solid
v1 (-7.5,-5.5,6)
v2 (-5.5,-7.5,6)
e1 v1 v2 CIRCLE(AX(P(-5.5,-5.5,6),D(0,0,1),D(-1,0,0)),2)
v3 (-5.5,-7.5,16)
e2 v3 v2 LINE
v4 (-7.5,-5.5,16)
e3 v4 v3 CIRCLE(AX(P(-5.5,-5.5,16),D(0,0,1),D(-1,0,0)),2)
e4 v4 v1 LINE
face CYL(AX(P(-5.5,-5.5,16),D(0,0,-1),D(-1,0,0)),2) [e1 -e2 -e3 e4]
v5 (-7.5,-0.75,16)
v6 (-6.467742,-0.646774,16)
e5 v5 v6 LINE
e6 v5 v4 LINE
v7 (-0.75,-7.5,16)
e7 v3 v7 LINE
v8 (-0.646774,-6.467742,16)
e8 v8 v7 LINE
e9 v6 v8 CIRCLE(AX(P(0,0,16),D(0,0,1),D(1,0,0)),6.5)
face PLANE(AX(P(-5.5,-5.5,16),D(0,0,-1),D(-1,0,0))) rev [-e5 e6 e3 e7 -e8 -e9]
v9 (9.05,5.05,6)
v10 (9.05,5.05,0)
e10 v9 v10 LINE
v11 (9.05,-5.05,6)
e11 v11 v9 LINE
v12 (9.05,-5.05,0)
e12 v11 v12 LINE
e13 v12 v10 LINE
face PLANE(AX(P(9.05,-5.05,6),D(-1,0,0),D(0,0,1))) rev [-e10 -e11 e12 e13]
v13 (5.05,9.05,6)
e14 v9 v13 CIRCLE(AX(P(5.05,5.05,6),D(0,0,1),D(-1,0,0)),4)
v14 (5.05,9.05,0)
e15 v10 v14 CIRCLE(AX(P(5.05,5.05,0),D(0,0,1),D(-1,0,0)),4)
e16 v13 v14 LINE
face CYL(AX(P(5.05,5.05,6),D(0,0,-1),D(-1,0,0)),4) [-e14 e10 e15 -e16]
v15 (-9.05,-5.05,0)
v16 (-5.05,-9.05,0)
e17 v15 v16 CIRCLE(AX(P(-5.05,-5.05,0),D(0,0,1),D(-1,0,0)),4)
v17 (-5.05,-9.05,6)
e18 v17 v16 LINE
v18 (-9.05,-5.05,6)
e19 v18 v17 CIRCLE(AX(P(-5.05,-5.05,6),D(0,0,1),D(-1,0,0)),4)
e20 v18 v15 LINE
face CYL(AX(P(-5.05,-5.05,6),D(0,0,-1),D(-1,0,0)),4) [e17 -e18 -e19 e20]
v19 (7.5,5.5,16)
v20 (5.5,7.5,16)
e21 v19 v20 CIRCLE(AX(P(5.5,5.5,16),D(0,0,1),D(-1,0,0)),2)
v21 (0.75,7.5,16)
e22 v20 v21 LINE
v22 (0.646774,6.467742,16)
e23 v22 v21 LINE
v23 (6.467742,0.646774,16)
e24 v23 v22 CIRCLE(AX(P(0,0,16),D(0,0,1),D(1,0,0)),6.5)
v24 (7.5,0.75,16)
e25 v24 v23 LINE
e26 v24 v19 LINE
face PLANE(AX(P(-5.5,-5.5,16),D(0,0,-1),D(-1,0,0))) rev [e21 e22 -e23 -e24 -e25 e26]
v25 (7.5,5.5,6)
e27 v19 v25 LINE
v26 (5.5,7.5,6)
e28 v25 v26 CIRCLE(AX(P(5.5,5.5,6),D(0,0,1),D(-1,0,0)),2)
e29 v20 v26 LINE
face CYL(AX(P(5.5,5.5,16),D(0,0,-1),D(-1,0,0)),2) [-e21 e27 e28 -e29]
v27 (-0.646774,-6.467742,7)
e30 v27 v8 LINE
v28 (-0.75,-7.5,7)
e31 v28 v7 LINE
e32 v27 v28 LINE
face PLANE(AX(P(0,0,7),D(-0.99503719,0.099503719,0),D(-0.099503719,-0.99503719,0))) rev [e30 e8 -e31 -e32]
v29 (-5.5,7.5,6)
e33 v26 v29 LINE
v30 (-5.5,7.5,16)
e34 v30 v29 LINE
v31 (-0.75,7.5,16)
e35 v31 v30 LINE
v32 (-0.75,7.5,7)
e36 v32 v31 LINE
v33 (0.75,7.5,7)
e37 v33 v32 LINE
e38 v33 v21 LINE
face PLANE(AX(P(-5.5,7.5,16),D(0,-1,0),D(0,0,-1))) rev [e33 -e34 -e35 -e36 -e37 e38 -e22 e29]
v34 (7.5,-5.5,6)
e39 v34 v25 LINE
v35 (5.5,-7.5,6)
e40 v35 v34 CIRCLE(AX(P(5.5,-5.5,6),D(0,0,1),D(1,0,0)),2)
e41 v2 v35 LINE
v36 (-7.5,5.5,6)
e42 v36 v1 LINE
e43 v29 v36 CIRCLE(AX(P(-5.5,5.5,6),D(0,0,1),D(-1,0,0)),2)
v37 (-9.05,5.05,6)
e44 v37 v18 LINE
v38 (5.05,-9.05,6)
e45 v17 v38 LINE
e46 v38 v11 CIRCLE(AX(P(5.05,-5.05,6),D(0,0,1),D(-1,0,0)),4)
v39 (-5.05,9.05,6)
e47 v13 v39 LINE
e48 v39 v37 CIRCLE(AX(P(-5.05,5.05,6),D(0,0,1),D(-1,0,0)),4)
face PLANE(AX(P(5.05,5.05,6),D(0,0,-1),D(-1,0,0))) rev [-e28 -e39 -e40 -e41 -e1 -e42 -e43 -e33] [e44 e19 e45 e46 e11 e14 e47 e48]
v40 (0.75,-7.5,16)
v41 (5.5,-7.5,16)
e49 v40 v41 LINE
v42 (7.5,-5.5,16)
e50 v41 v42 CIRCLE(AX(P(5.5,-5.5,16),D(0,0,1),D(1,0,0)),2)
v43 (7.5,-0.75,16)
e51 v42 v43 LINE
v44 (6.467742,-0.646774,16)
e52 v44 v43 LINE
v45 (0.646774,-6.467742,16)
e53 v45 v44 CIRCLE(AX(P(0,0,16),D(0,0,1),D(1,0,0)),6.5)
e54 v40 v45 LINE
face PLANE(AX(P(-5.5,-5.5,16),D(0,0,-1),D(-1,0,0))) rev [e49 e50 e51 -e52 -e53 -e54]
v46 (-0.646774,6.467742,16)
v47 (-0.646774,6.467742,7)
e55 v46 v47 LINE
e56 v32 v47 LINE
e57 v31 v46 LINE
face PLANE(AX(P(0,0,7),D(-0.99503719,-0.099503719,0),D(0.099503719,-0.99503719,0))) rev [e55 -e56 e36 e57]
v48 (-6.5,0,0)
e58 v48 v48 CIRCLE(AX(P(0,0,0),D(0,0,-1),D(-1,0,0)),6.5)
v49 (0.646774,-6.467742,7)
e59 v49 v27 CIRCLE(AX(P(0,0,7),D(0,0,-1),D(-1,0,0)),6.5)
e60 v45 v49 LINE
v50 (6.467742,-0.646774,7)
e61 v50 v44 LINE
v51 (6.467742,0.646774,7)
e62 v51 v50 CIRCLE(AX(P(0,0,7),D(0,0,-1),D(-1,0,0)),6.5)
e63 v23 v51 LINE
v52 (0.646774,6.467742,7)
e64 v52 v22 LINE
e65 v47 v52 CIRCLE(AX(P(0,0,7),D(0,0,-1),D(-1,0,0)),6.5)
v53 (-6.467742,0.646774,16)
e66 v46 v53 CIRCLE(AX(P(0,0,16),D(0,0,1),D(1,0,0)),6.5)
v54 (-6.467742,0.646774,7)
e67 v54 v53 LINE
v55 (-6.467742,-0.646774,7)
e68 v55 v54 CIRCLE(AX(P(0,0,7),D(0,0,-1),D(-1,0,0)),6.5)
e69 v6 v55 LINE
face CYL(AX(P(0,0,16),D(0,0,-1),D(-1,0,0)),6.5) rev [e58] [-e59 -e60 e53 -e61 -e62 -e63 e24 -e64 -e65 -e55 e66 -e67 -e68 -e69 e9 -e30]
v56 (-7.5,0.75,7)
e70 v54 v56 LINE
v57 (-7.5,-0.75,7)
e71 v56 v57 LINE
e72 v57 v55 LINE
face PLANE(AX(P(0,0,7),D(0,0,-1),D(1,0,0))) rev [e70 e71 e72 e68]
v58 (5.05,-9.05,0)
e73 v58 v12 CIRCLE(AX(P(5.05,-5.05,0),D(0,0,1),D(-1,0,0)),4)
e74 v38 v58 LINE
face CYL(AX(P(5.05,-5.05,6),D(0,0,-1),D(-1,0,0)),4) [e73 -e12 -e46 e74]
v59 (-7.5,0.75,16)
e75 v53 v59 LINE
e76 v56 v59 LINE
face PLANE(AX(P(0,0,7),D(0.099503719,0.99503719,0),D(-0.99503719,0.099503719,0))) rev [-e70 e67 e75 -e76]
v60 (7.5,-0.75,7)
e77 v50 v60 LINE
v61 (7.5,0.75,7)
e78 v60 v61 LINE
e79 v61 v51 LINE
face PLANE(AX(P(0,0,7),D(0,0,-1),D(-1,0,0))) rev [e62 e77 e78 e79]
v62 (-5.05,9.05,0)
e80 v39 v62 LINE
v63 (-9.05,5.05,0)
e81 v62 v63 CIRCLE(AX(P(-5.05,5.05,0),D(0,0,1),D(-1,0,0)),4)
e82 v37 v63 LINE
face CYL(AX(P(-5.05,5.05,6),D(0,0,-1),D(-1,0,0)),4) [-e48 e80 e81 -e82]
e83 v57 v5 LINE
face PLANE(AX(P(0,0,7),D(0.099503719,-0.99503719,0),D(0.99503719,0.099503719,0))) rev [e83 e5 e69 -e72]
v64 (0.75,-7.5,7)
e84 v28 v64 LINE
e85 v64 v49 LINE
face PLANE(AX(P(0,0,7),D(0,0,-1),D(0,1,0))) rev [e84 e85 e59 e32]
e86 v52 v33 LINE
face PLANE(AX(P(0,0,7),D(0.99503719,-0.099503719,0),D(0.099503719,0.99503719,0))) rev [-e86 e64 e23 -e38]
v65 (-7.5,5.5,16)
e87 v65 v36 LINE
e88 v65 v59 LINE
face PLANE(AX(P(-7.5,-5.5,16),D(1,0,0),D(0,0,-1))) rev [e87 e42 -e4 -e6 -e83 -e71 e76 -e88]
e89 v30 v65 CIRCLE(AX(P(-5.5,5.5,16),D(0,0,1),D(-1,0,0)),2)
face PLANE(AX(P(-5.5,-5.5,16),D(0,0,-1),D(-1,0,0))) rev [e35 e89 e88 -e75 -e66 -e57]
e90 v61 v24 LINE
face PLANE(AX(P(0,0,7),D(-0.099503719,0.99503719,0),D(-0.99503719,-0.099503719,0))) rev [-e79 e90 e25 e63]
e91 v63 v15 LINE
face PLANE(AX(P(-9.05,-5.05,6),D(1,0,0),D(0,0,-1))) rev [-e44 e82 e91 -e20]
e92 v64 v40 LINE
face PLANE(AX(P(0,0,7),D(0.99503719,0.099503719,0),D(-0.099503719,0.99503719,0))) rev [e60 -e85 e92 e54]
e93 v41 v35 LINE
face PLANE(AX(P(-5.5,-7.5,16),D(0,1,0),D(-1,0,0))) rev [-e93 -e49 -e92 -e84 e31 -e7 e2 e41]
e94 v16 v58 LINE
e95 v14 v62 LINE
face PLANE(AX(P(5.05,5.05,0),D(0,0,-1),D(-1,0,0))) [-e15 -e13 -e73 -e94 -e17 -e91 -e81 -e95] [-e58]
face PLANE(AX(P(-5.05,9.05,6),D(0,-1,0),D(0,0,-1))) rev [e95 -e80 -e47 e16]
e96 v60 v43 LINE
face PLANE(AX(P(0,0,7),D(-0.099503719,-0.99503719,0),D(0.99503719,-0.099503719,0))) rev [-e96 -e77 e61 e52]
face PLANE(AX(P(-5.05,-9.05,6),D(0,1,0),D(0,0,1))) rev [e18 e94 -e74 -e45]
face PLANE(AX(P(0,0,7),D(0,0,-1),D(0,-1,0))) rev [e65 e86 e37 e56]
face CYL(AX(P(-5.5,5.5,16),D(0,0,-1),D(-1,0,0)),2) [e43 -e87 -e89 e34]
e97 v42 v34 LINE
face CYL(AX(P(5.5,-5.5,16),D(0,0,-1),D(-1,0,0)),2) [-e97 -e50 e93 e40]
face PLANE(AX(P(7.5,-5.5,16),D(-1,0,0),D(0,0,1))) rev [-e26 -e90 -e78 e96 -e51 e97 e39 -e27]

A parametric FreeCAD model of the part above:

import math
import FreeCAD as App
import Part
import Sketcher

doc = App.newDocument("Part")
body = doc.addObject("PartDesign::Body", "Body")

sketch1 = body.newObject("Sketcher::SketchObject", "Sketch")
sketch1.AttachmentSupport = (doc.getObject("XY_Plane"), [""])
sketch1.MapMode = "FlatFace"
sketch1.addGeometry(Part.LineSegment(App.Vector(5.05, 9.05, 0), App.Vector(-5.05, 9.05, 0)), False)
sketch1.addGeometry(Part.ArcOfCircle(Part.Circle(App.Vector(-5.05, 5.05, 0), App.Vector(0, 0, 1), 4), math.radians(90), math.radians(180)), False)
sketch1.addGeometry(Part.LineSegment(App.Vector(-9.05, 5.05, 0), App.Vector(-9.05, -5.05, 0)), False)
sketch1.addGeometry(Part.ArcOfCircle(Part.Circle(App.Vector(-5.05, -5.05, 0), App.Vector(0, 0, 1), 4), math.radians(180), math.radians(270)), False)
sketch1.addGeometry(Part.LineSegment(App.Vector(-5.05, -9.05, 0), App.Vector(5.05, -9.05, 0)), False)
sketch1.addGeometry(Part.ArcOfCircle(Part.Circle(App.Vector(5.05, -5.05, 0), App.Vector(0, 0, 1), 4), math.radians(-90), math.radians(0)), False)
sketch1.addGeometry(Part.LineSegment(App.Vector(9.05, -5.05, 0), App.Vector(9.05, 5.05, 0)), False)
sketch1.addGeometry(Part.ArcOfCircle(Part.Circle(App.Vector(5.05, 5.05, 0), App.Vector(0, 0, 1), 4), math.radians(0), math.radians(90)), False)
sketch1.addConstraint(Sketcher.Constraint("Tangent", 0, 2, 1, 1))
sketch1.addConstraint(Sketcher.Constraint("Tangent", 1, 2, 2, 1))
sketch1.addConstraint(Sketcher.Constraint("Tangent", 2, 2, 3, 1))
sketch1.addConstraint(Sketcher.Constraint("Tangent", 3, 2, 4, 1))
sketch1.addConstraint(Sketcher.Constraint("Tangent", 4, 2, 5, 1))
sketch1.addConstraint(Sketcher.Constraint("Tangent", 5, 2, 6, 1))
sketch1.addConstraint(Sketcher.Constraint("Tangent", 6, 2, 7, 1))
sketch1.addConstraint(Sketcher.Constraint("Tangent", 7, 2, 0, 1))
sketch1.addConstraint(Sketcher.Constraint("Horizontal", 0))
sketch1.addConstraint(Sketcher.Constraint("Vertical", 2))
sketch1.addConstraint(Sketcher.Constraint("Horizontal", 4))
sketch1.addConstraint(Sketcher.Constraint("Vertical", 6))
sketch1.addConstraint(Sketcher.Constraint("Equal", 1, 3))
sketch1.addConstraint(Sketcher.Constraint("Equal", 3, 5))
sketch1.addConstraint(Sketcher.Constraint("Equal", 5, 7))
sketch1.addConstraint(Sketcher.Constraint("Symmetric", 1, 3, 5, 3, -1, 1))
sketch1.addConstraint(Sketcher.Constraint("Equal", 4, 2))
sketch1.addConstraint(Sketcher.Constraint("Radius", 1, 4.0))
sketch1.addConstraint(Sketcher.Constraint("DistanceX", 0, 2, 0, 1, 10.1))
pad1 = body.newObject("PartDesign::Pad", "Pad")
pad1.Profile = sketch1
pad1.Length = 6

sketch2 = body.newObject("Sketcher::SketchObject", "Sketch001")
sketch2.AttachmentSupport = (doc.getObject("XY_Plane"), [""])
sketch2.MapMode = "FlatFace"
sketch2.AttachmentOffset = App.Placement(App.Vector(0, 0, 6), App.Rotation())
sketch2.addGeometry(Part.LineSegment(App.Vector(-5.5, -7.5, 0), App.Vector(5.5, -7.5, 0)), False)
sketch2.addGeometry(Part.ArcOfCircle(Part.Circle(App.Vector(5.5, -5.5, 0), App.Vector(0, 0, 1), 2), math.radians(-90), math.radians(0)), False)
sketch2.addGeometry(Part.LineSegment(App.Vector(7.5, -5.5, 0), App.Vector(7.5, 5.5, 0)), False)
sketch2.addGeometry(Part.ArcOfCircle(Part.Circle(App.Vector(5.5, 5.5, 0), App.Vector(0, 0, 1), 2), math.radians(0), math.radians(90)), False)
sketch2.addGeometry(Part.LineSegment(App.Vector(5.5, 7.5, 0), App.Vector(-5.5, 7.5, 0)), False)
sketch2.addGeometry(Part.ArcOfCircle(Part.Circle(App.Vector(-5.5, 5.5, 0), App.Vector(0, 0, 1), 2), math.radians(90), math.radians(180)), False)
sketch2.addGeometry(Part.LineSegment(App.Vector(-7.5, 5.5, 0), App.Vector(-7.5, -5.5, 0)), False)
sketch2.addGeometry(Part.ArcOfCircle(Part.Circle(App.Vector(-5.5, -5.5, 0), App.Vector(0, 0, 1), 2), math.radians(-180), math.radians(-90)), False)
sketch2.addGeometry(Part.Circle(App.Vector(0, 0, 0), App.Vector(0, 0, 1), 6.5), False)
sketch2.addConstraint(Sketcher.Constraint("Tangent", 0, 2, 1, 1))
sketch2.addConstraint(Sketcher.Constraint("Tangent", 1, 2, 2, 1))
sketch2.addConstraint(Sketcher.Constraint("Tangent", 2, 2, 3, 1))
sketch2.addConstraint(Sketcher.Constraint("Tangent", 3, 2, 4, 1))
sketch2.addConstraint(Sketcher.Constraint("Tangent", 4, 2, 5, 1))
sketch2.addConstraint(Sketcher.Constraint("Tangent", 5, 2, 6, 1))
sketch2.addConstraint(Sketcher.Constraint("Tangent", 6, 2, 7, 1))
sketch2.addConstraint(Sketcher.Constraint("Tangent", 7, 2, 0, 1))
sketch2.addConstraint(Sketcher.Constraint("Horizontal", 0))
sketch2.addConstraint(Sketcher.Constraint("Vertical", 2))
sketch2.addConstraint(Sketcher.Constraint("Horizontal", 4))
sketch2.addConstraint(Sketcher.Constraint("Vertical", 6))
sketch2.addConstraint(Sketcher.Constraint("Coincident", 8, 3, -1, 1))
sketch2.addConstraint(Sketcher.Constraint("Equal", 1, 3))
sketch2.addConstraint(Sketcher.Constraint("Equal", 3, 5))
sketch2.addConstraint(Sketcher.Constraint("Equal", 5, 7))
sketch2.addConstraint(Sketcher.Constraint("Symmetric", 1, 3, 5, 3, -1, 1))
sketch2.addConstraint(Sketcher.Constraint("Equal", 4, 2))
sketch2.addConstraint(Sketcher.Constraint("Diameter", 8, 13.0))
sketch2.addConstraint(Sketcher.Constraint("Radius", 1, 2.0))
sketch2.addConstraint(Sketcher.Constraint("DistanceX", 0, 1, 0, 2, 11.0))
pad2 = body.newObject("PartDesign::Pad", "Pad001")
pad2.Profile = sketch2
pad2.Length = 10

sketch3 = body.newObject("Sketcher::SketchObject", "Sketch002")
sketch3.AttachmentSupport = (doc.getObject("XY_Plane"), [""])
sketch3.MapMode = "FlatFace"
sketch3.AttachmentOffset = App.Placement(App.Vector(0, 0, 16), App.Rotation())
sketch3.addGeometry(Part.LineSegment(App.Vector(7.5, 0.75, 0), App.Vector(0, 0, 0)), False)
sketch3.addGeometry(Part.LineSegment(App.Vector(0, 0, 0), App.Vector(7.5, -0.75, 0)), False)
sketch3.addGeometry(Part.LineSegment(App.Vector(7.5, -0.75, 0), App.Vector(7.5, 0.75, 0)), False)
sketch3.addConstraint(Sketcher.Constraint("Coincident", 0, 2, 1, 1))
sketch3.addConstraint(Sketcher.Constraint("Coincident", 1, 2, 2, 1))
sketch3.addConstraint(Sketcher.Constraint("Coincident", 2, 2, 0, 1))
sketch3.addConstraint(Sketcher.Constraint("Vertical", 2))
sketch3.addConstraint(Sketcher.Constraint("Coincident", 0, 2, -1, 1))
sketch3.addConstraint(Sketcher.Constraint("Equal", 0, 1))
sketch3.addConstraint(Sketcher.Constraint("DistanceY", 2, 1, 2, 2, 1.5))
sketch3.addConstraint(Sketcher.Constraint("DistanceX", -1, 1, 1, 2, 7.5))
pocket1 = body.newObject("PartDesign::Pocket", "Pocket")
pocket1.Profile = sketch3
pocket1.Length = 9
doc.recompute()

polarpattern = body.newObject("PartDesign::PolarPattern", "PolarPattern")
polarpattern.Originals = [pocket1]
polarpattern.Axis = (doc.getObject("Z_Axis"), [""])
polarpattern.Angle = 360
polarpattern.Occurrences = 4
body.Tip = polarpattern

sketch4 = body.newObject("Sketcher::SketchObject", "Sketch003")
sketch4.AttachmentSupport = (doc.getObject("XY_Plane"), [""])
sketch4.MapMode = "FlatFace"
sketch4.addGeometry(Part.Circle(App.Vector(0, 0, 0), App.Vector(0, 0, 1), 6.5), False)
sketch4.addConstraint(Sketcher.Constraint("Coincident", 0, 3, -1, 1))
sketch4.addConstraint(Sketcher.Constraint("Diameter", 0, 13.0))
pocket2 = body.newObject("PartDesign::Pocket", "Pocket001")
pocket2.Profile = sketch4
pocket2.Length = 60
pocket2.Midplane = True

doc.recompute()
